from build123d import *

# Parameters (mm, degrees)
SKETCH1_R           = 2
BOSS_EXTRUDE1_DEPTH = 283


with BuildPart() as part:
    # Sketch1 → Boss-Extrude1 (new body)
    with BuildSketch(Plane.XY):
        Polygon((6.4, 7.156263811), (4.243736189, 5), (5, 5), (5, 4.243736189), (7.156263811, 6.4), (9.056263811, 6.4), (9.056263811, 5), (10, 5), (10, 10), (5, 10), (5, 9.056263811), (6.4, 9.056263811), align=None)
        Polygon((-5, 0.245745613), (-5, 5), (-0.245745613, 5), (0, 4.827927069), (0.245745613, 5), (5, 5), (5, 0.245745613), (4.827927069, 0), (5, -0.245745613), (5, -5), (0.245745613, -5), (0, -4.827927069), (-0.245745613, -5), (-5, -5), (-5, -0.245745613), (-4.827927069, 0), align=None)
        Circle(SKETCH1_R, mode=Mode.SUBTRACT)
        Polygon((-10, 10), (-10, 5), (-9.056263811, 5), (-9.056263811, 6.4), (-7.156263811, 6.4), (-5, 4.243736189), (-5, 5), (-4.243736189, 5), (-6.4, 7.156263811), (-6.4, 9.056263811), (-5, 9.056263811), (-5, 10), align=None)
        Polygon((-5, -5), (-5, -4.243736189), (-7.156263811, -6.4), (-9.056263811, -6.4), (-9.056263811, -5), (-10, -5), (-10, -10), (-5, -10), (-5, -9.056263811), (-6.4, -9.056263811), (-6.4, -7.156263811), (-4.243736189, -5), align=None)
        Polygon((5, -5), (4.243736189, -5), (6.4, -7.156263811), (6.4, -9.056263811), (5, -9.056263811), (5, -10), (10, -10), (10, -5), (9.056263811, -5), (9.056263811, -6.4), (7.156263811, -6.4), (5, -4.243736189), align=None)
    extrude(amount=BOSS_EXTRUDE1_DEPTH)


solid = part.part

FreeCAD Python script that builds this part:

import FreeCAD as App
import Part
import Sketcher
from FreeCAD import Vector
Q = App.Units.Quantity

doc = App.newDocument("Part")
params = doc.addObject("Spreadsheet::Sheet", "Params")
for row, (alias, value) in enumerate([
    ("sketch1_diameter", "4 mm"),
    ("sketch1_width", "5 mm"),
    ("sketch1_width2", "1.4 mm"),
    ("sketch1_width3", "1.9 mm"),
    ("sketch1_length", "0.3 mm"),
    ("pad1_length", "283 mm"),
], start=1):
    params.set(f"A{row}", alias)
    params.set(f"B{row}", "=" + value)
    params.setAlias(f"B{row}", alias)

body = doc.addObject("PartDesign::Body", "Body")

sketch1 = doc.addObject("Sketcher::SketchObject", "Sketch")
body.addObject(sketch1)
sketch1.AttachmentSupport = (doc.XY_Plane, [""])
sketch1.MapMode = "FlatFace"
sketch1.addGeometry([
    Part.LineSegment(Vector(6.4, 7.16, 0), Vector(4.24, 5, 0)),
    Part.LineSegment(Vector(4.24, 5, 0), Vector(0.25, 5, 0)),
    Part.LineSegment(Vector(0.25, 5, 0), Vector(0, 4.83, 0)),
    Part.LineSegment(Vector(0, 4.83, 0), Vector(-0.25, 5, 0)),
    Part.LineSegment(Vector(-0.25, 5, 0), Vector(-4.24, 5, 0)),
    Part.LineSegment(Vector(-4.24, 5, 0), Vector(-6.4, 7.16, 0)),
    Part.LineSegment(Vector(-6.4, 7.16, 0), Vector(-6.4, 9.06, 0)),
    Part.LineSegment(Vector(-6.4, 9.06, 0), Vector(-5, 9.06, 0)),
    Part.LineSegment(Vector(-5, 9.06, 0), Vector(-5, 10, 0)),
    Part.LineSegment(Vector(-5, 10, 0), Vector(-10, 10, 0)),
    Part.LineSegment(Vector(-10, 10, 0), Vector(-10, 5, 0)),
    Part.LineSegment(Vector(-10, 5, 0), Vector(-9.06, 5, 0)),
    Part.LineSegment(Vector(-9.06, 5, 0), Vector(-9.06, 6.4, 0)),
    Part.LineSegment(Vector(-9.06, 6.4, 0), Vector(-7.16, 6.4, 0)),
    Part.LineSegment(Vector(-7.16, 6.4, 0), Vector(-5, 4.24, 0)),
    Part.LineSegment(Vector(-5, 4.24, 0), Vector(-5, 0.25, 0)),
    Part.LineSegment(Vector(-5, 0.25, 0), Vector(-4.83, 0, 0)),
    Part.LineSegment(Vector(-4.83, 0, 0), Vector(-5, -0.25, 0)),
    Part.LineSegment(Vector(-5, -0.25, 0), Vector(-5, -4.24, 0)),
    Part.LineSegment(Vector(-5, -4.24, 0), Vector(-7.16, -6.4, 0)),
    Part.LineSegment(Vector(-7.16, -6.4, 0), Vector(-9.06, -6.4, 0)),
    Part.LineSegment(Vector(-9.06, -6.4, 0), Vector(-9.06, -5, 0)),
    Part.LineSegment(Vector(-9.06, -5, 0), Vector(-10, -5, 0)),
    Part.LineSegment(Vector(-10, -5, 0), Vector(-10, -10, 0)),
    Part.LineSegment(Vector(-10, -10, 0), Vector(-5, -10, 0)),
    Part.LineSegment(Vector(-5, -10, 0), Vector(-5, -9.06, 0)),
    Part.LineSegment(Vector(-5, -9.06, 0), Vector(-6.4, -9.06, 0)),
    Part.LineSegment(Vector(-6.4, -9.06, 0), Vector(-6.4, -7.16, 0)),
    Part.LineSegment(Vector(-6.4, -7.16, 0), Vector(-4.24, -5, 0)),
    Part.LineSegment(Vector(-4.24, -5, 0), Vector(-0.25, -5, 0)),
    Part.LineSegment(Vector(-0.25, -5, 0), Vector(0, -4.83, 0)),
    Part.LineSegment(Vector(0, -4.83, 0), Vector(0.25, -5, 0)),
    Part.LineSegment(Vector(0.25, -5, 0), Vector(4.24, -5, 0)),
    Part.LineSegment(Vector(4.24, -5, 0), Vector(6.4, -7.16, 0)),
    Part.LineSegment(Vector(6.4, -7.16, 0), Vector(6.4, -9.06, 0)),
    Part.LineSegment(Vector(6.4, -9.06, 0), Vector(5, -9.06, 0)),
    Part.LineSegment(Vector(5, -9.06, 0), Vector(5, -10, 0)),
    Part.LineSegment(Vector(5, -10, 0), Vector(10, -10, 0)),
    Part.LineSegment(Vector(10, -10, 0), Vector(10, -5, 0)),
    Part.LineSegment(Vector(10, -5, 0), Vector(9.06, -5, 0)),
    Part.LineSegment(Vector(9.06, -5, 0), Vector(9.06, -6.4, 0)),
    Part.LineSegment(Vector(9.06, -6.4, 0), Vector(7.16, -6.4, 0)),
    Part.LineSegment(Vector(7.16, -6.4, 0), Vector(5, -4.24, 0)),
    Part.LineSegment(Vector(5, -4.24, 0), Vector(5, -0.25, 0)),
    Part.LineSegment(Vector(5, -0.25, 0), Vector(4.83, 0, 0)),
    Part.LineSegment(Vector(4.83, 0, 0), Vector(5, 0.25, 0)),
    Part.LineSegment(Vector(5, 0.25, 0), Vector(5, 4.24, 0)),
    Part.LineSegment(Vector(5, 4.24, 0), Vector(7.16, 6.4, 0)),
    Part.LineSegment(Vector(7.16, 6.4, 0), Vector(9.06, 6.4, 0)),
    Part.LineSegment(Vector(9.06, 6.4, 0), Vector(9.06, 5, 0)),
    Part.LineSegment(Vector(9.06, 5, 0), Vector(10, 5, 0)),
    Part.LineSegment(Vector(10, 5, 0), Vector(10, 10, 0)),
    Part.LineSegment(Vector(10, 10, 0), Vector(5, 10, 0)),
    Part.LineSegment(Vector(5, 10, 0), Vector(5, 9.06, 0)),
    Part.LineSegment(Vector(5, 9.06, 0), Vector(6.4, 9.06, 0)),
    Part.LineSegment(Vector(6.4, 9.06, 0), Vector(6.4, 7.16, 0)),
    Part.Circle(Vector(0, 0, 0), Vector(0, 0, 1), 2),
], False)
sketch1.addConstraint([
    Sketcher.Constraint("Coincident", 0, 2, 1, 1),
    Sketcher.Constraint("Coincident", 1, 2, 2, 1),
    Sketcher.Constraint("Coincident", 2, 2, 3, 1),
    Sketcher.Constraint("Coincident", 3, 2, 4, 1),
    Sketcher.Constraint("Coincident", 4, 2, 5, 1),
    Sketcher.Constraint("Coincident", 5, 2, 6, 1),
    Sketcher.Constraint("Coincident", 6, 2, 7, 1),
    Sketcher.Constraint("Coincident", 7, 2, 8, 1),
    Sketcher.Constraint("Coincident", 8, 2, 9, 1),
    Sketcher.Constraint("Coincident", 9, 2, 10, 1),
    Sketcher.Constraint("Coincident", 10, 2, 11, 1),
    Sketcher.Constraint("Coincident", 11, 2, 12, 1),
    Sketcher.Constraint("Coincident", 12, 2, 13, 1),
    Sketcher.Constraint("Coincident", 13, 2, 14, 1),
    Sketcher.Constraint("Coincident", 14, 2, 15, 1),
    Sketcher.Constraint("Coincident", 15, 2, 16, 1),
    Sketcher.Constraint("Coincident", 16, 2, 17, 1),
    Sketcher.Constraint("Coincident", 17, 2, 18, 1),
    Sketcher.Constraint("Coincident", 18, 2, 19, 1),
    Sketcher.Constraint("Coincident", 19, 2, 20, 1),
    Sketcher.Constraint("Coincident", 20, 2, 21, 1),
    Sketcher.Constraint("Coincident", 21, 2, 22, 1),
    Sketcher.Constraint("Coincident", 22, 2, 23, 1),
    Sketcher.Constraint("Coincident", 23, 2, 24, 1),
    Sketcher.Constraint("Coincident", 24, 2, 25, 1),
    Sketcher.Constraint("Coincident", 25, 2, 26, 1),
    Sketcher.Constraint("Coincident", 26, 2, 27, 1),
    Sketcher.Constraint("Coincident", 27, 2, 28, 1),
    Sketcher.Constraint("Coincident", 28, 2, 29, 1),
    Sketcher.Constraint("Coincident", 29, 2, 30, 1),
    Sketcher.Constraint("Coincident", 30, 2, 31, 1),
    Sketcher.Constraint("Coincident", 31, 2, 32, 1),
    Sketcher.Constraint("Coincident", 32, 2, 33, 1),
    Sketcher.Constraint("Coincident", 33, 2, 34, 1),
    Sketcher.Constraint("Coincident", 34, 2, 35, 1),
    Sketcher.Constraint("Coincident", 35, 2, 36, 1),
    Sketcher.Constraint("Coincident", 36, 2, 37, 1),
    Sketcher.Constraint("Coincident", 37, 2, 38, 1),
    Sketcher.Constraint("Coincident", 38, 2, 39, 1),
    Sketcher.Constraint("Coincident", 39, 2, 40, 1),
    Sketcher.Constraint("Coincident", 40, 2, 41, 1),
    Sketcher.Constraint("Coincident", 41, 2, 42, 1),
    Sketcher.Constraint("Coincident", 42, 2, 43, 1),
    Sketcher.Constraint("Coincident", 43, 2, 44, 1),
    Sketcher.Constraint("Coincident", 44, 2, 45, 1),
    Sketcher.Constraint("Coincident", 45, 2, 46, 1),
    Sketcher.Constraint("Coincident", 46, 2, 47, 1),
    Sketcher.Constraint("Coincident", 47, 2, 48, 1),
    Sketcher.Constraint("Coincident", 48, 2, 49, 1),
    Sketcher.Constraint("Coincident", 49, 2, 50, 1),
    Sketcher.Constraint("Coincident", 50, 2, 51, 1),
    Sketcher.Constraint("Coincident", 51, 2, 52, 1),
    Sketcher.Constraint("Coincident", 52, 2, 53, 1),
    Sketcher.Constraint("Coincident", 53, 2, 54, 1),
    Sketcher.Constraint("Coincident", 54, 2, 55, 1),
    Sketcher.Constraint("Coincident", 55, 2, 0, 1),
    Sketcher.Constraint("Horizontal", 1),
    Sketcher.Constraint("Horizontal", 4),
    Sketcher.Constraint("Vertical", 6),
    Sketcher.Constraint("Horizontal", 7),
    Sketcher.Constraint("Vertical", 8),
    Sketcher.Constraint("Horizontal", 9),
    Sketcher.Constraint("Vertical", 10),
    Sketcher.Constraint("Horizontal", 11),
    Sketcher.Constraint("Vertical", 12),
    Sketcher.Constraint("Horizontal", 13),
    Sketcher.Constraint("Vertical", 15),
    Sketcher.Constraint("Vertical", 18),
    Sketcher.Constraint("Horizontal", 20),
    Sketcher.Constraint("Vertical", 21),
    Sketcher.Constraint("Horizontal", 22),
    Sketcher.Constraint("Vertical", 23),
    Sketcher.Constraint("Horizontal", 24),
    Sketcher.Constraint("Vertical", 25),
    Sketcher.Constraint("Horizontal", 26),
    Sketcher.Constraint("Vertical", 27),
    Sketcher.Constraint("Horizontal", 29),
    Sketcher.Constraint("Horizontal", 32),
    Sketcher.Constraint("Vertical", 34),
    Sketcher.Constraint("Horizontal", 35),
    Sketcher.Constraint("Vertical", 36),
    Sketcher.Constraint("Horizontal", 37),
    Sketcher.Constraint("Vertical", 38),
    Sketcher.Constraint("Horizontal", 39),
    Sketcher.Constraint("Vertical", 40),
    Sketcher.Constraint("Horizontal", 41),
    Sketcher.Constraint("Vertical", 43),
    Sketcher.Constraint("Vertical", 46),
    Sketcher.Constraint("Horizontal", 48),
    Sketcher.Constraint("Vertical", 49),
    Sketcher.Constraint("Horizontal", 50),
    Sketcher.Constraint("Vertical", 51),
    Sketcher.Constraint("Horizontal", 52),
    Sketcher.Constraint("Vertical", 53),
    Sketcher.Constraint("Horizontal", 54),
    Sketcher.Constraint("Vertical", 55),
    Sketcher.Constraint("Coincident", 56, 3, -1, 1),
    Sketcher.Constraint("Symmetric", 0, 2, 28, 2, -1, 1),
    Sketcher.Constraint("Symmetric", 2, 2, 30, 2, -1, 1),
    Sketcher.Constraint("Symmetric", 3, 2, 31, 2, -1, 1),
    Sketcher.Constraint("Symmetric", 5, 2, 33, 2, -1, 1),
    Sketcher.Constraint("Symmetric", 7, 2, 35, 2, -1, 1),
    Sketcher.Constraint("Symmetric", 9, 2, 37, 2, -1, 1),
    Sketcher.Constraint("Symmetric", 11, 2, 39, 2, -1, 1),
    Sketcher.Constraint("Symmetric", 13, 2, 41, 2, -1, 1),
    Sketcher.Constraint("Symmetric", 14, 2, 42, 2, -1, 1),
    Sketcher.Constraint("Symmetric", 16, 2, 44, 2, -1, 1),
    Sketcher.Constraint("Symmetric", 17, 2, 45, 2, -1, 1),
    Sketcher.Constraint("Symmetric", 19, 2, 47, 2, -1, 1),
    Sketcher.Constraint("Symmetric", 21, 2, 49, 2, -1, 1),
    Sketcher.Constraint("Symmetric", 23, 2, 51, 2, -1, 1),
    Sketcher.Constraint("Symmetric", 25, 2, 53, 2, -1, 1),
    Sketcher.Constraint("Symmetric", 27, 2, 55, 2, -1, 1),
    Sketcher.Constraint("Symmetric", 1, 2, 3, 2, -2),
    Sketcher.Constraint("Symmetric", 27, 2, 33, 2, -2),
    Sketcher.Constraint("Symmetric", 25, 2, 35, 2, -2),
    Sketcher.Constraint("Symmetric", 23, 2, 37, 2, -2),
    Sketcher.Constraint("Symmetric", 21, 2, 39, 2, -2),
    Sketcher.Constraint("Symmetric", 19, 2, 41, 2, -2),
    Sketcher.Constraint("Symmetric", 18, 2, 42, 2, -2),
    Sketcher.Constraint("PointOnObject", 2, 2, -2),
    Sketcher.Constraint("PointOnObject", 16, 2, -1),
    Sketcher.Constraint("Perpendicular", 0, 5),
    Sketcher.Constraint("Parallel", 5, 14),
    Sketcher.Constraint("Perpendicular", 2, 16),
    Sketcher.Constraint("Perpendicular", 3, 17),
    Sketcher.Constraint("Perpendicular", 14, 19),
    Sketcher.Constraint("Perpendicular", 16, 30),
    Sketcher.Constraint("Perpendicular", 28, 33),
    Sketcher.Constraint("Perpendicular", 30, 44),
    Sketcher.Constraint("Perpendicular", 42, 47),
    Sketcher.Constraint("Horizontal", 4, 2, 10, 2),
    Sketcher.Constraint("Vertical", 8, 2, 14, 2),
    Sketcher.Constraint("Equal", 48, 6),
    Sketcher.Constraint("Equal", 50, 8),
    Sketcher.Constraint("Equal", 52, 10),
    Sketcher.Constraint("Equal", 54, 12),
    Sketcher.Constraint("Equal", 32, 15),
    Sketcher.Constraint("Equal", 3, 16),
    Sketcher.Constraint("Diameter", 56, Q("4 mm")),
    Sketcher.Constraint("DistanceX", 9, 2, 9, 1, Q("5 mm")),
    Sketcher.Constraint("Angle", 2, Q("-145 deg")),
    Sketcher.Constraint("DistanceX", 7, 1, 7, 2, Q("1.4 mm")),
    Sketcher.Constraint("DistanceX", 13, 1, 13, 2, Q("1.9 mm")),
    Sketcher.Constraint("DistanceY", -1, 1, 0, 2, Q("5 mm")),
    Sketcher.Constraint("Distance", 2, Q("0.3 mm")),
    Sketcher.Constraint("DistanceX", 1, 2, 1, 1, Q("3.997991 mm")),
])
sketch1.setExpression("Constraints[139]", "Params.sketch1_diameter")
sketch1.setExpression("Constraints[140]", "Params.sketch1_width")
sketch1.setExpression("Constraints[142]", "Params.sketch1_width2")
sketch1.setExpression("Constraints[143]", "Params.sketch1_width3")
sketch1.setExpression("Constraints[145]", "Params.sketch1_length")
pad1 = doc.addObject("PartDesign::Pad", "Pad")
body.addObject(pad1)
pad1.Profile = sketch1
pad1.setExpression("Length", "Params.pad1_length")

doc.recompute()
